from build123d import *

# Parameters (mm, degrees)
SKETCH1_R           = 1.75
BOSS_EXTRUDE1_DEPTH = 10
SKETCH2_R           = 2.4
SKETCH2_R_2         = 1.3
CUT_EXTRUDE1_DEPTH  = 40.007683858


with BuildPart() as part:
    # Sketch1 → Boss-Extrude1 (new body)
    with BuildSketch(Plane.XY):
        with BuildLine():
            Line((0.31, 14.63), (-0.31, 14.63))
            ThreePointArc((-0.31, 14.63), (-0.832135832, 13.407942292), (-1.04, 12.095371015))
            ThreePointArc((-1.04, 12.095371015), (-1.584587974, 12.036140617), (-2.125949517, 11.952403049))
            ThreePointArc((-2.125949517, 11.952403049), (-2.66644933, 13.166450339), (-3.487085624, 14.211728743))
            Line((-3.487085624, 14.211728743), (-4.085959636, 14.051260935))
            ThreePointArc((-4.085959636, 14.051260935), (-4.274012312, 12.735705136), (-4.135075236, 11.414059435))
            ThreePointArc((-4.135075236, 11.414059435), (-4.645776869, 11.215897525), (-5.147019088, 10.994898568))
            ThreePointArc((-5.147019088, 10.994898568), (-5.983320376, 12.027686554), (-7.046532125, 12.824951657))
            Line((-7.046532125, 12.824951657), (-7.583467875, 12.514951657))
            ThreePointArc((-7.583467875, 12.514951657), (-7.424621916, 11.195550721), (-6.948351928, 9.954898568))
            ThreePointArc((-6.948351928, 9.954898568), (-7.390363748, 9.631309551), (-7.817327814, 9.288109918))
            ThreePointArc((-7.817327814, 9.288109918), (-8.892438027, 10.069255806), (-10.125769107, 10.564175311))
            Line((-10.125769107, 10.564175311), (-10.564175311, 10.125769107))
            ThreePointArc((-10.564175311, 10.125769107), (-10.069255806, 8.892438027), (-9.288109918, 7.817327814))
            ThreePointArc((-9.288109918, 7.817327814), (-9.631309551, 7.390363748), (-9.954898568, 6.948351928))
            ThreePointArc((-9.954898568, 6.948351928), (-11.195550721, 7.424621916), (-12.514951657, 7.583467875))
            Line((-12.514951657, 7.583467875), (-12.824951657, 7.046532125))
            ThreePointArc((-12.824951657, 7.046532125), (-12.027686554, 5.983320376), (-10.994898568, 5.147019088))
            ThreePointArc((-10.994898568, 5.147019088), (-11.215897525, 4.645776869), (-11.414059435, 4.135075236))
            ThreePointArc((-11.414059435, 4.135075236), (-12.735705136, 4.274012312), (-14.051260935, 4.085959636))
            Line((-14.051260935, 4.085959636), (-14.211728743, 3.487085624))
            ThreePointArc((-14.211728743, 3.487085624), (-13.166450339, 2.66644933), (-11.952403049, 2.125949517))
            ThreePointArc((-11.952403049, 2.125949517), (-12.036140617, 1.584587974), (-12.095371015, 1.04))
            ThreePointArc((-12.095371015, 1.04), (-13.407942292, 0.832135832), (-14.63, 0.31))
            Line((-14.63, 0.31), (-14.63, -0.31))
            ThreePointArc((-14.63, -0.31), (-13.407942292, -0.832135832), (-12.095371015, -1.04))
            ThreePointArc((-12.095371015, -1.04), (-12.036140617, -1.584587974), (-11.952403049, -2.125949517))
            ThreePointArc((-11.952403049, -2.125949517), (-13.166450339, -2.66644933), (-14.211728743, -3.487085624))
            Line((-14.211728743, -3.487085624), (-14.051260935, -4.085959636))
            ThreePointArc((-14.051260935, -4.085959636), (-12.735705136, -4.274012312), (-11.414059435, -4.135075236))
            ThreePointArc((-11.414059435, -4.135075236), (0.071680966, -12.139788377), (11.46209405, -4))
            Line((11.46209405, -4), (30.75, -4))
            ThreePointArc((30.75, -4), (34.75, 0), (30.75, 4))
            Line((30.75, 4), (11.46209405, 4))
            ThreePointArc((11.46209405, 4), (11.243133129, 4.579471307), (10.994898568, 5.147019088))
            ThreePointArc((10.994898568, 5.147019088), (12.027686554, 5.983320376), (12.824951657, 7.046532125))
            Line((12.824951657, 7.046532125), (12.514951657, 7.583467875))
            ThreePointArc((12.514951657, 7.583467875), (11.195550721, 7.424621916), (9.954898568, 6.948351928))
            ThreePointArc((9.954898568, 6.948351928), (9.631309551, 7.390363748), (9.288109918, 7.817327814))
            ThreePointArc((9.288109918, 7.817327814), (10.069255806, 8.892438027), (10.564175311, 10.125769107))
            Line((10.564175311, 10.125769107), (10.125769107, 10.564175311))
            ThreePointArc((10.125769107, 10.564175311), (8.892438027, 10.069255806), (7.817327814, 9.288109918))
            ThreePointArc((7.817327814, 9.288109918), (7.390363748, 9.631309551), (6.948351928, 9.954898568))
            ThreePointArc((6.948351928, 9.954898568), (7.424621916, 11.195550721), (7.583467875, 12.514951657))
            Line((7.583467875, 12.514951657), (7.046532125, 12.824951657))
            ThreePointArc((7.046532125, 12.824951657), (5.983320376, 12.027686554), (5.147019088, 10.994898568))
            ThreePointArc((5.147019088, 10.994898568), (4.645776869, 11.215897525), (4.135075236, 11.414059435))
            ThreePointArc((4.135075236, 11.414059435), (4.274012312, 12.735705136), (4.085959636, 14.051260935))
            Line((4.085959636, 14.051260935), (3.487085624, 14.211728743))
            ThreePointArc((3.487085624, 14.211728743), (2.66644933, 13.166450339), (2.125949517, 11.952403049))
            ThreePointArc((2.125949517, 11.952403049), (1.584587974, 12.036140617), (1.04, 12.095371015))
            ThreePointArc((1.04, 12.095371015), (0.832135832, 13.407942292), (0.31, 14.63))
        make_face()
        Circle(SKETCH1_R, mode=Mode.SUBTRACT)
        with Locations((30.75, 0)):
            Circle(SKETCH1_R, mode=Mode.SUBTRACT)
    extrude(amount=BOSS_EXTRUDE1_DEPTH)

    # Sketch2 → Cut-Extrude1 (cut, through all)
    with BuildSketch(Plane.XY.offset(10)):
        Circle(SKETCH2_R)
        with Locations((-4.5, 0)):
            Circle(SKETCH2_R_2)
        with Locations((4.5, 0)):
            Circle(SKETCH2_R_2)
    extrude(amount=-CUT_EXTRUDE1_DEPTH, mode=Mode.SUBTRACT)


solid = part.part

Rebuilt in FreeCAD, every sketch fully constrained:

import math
import FreeCAD as App
import Part
import Sketcher
Q = App.Units.Quantity

doc = App.newDocument("Part")
body = doc.addObject("PartDesign::Body", "Body")

sketch1 = doc.addObject("Sketcher::SketchObject", "Sketch")
body.addObject(sketch1)
sketch1.AttachmentSupport = (doc.XY_Plane, [""])
sketch1.MapMode = "FlatFace"
sketch1.addGeometry([
    Part.LineSegment(App.Vector(0.31, 14.63, 0), App.Vector(-0.31, 14.63, 0)),
    Part.ArcOfCircle(Part.Circle(App.Vector(4.356934, 11.913435, 0), App.Vector(0, 0, 1), 5.4), math.radians(149.796843), math.radians(178.069235)),
    Part.ArcOfCircle(Part.Circle(App.Vector(0, 0, 0), App.Vector(0, 0, 1), 12.14), math.radians(94.914393), math.radians(100.085607)),
    Part.ArcOfCircle(Part.Circle(App.Vector(-7.291899, 10.379837, 0), App.Vector(0, 0, 1), 5.4), math.radians(16.930765), math.radians(45.203157)),
    Part.LineSegment(App.Vector(-3.487086, 14.211729, 0), App.Vector(-4.08596, 14.051261, 0)),
    Part.ArcOfCircle(Part.Circle(App.Vector(1.125051, 12.635152, 0), App.Vector(0, 0, 1), 5.4), math.radians(164.796843), math.radians(193.069235)),
    Part.ArcOfCircle(Part.Circle(App.Vector(0, 0, 0), App.Vector(0, 0, 1), 12.14), math.radians(109.914393), math.radians(115.085607)),
    Part.ArcOfCircle(Part.Circle(App.Vector(-9.729933, 8.13887, 0), App.Vector(0, 0, 1), 5.4), math.radians(31.930765), math.radians(60.203157)),
    Part.LineSegment(App.Vector(-7.046532, 12.824952, 0), App.Vector(-7.583468, 12.514952, 0)),
    Part.ArcOfCircle(Part.Circle(App.Vector(-2.183502, 12.495805, 0), App.Vector(0, 0, 1), 5.4), math.radians(179.796843), math.radians(208.069235)),
    Part.ArcOfCircle(Part.Circle(App.Vector(0, 0, 0), App.Vector(0, 0, 1), 12.140001), math.radians(124.914394), math.radians(130.085606)),
    Part.ArcOfCircle(Part.Circle(App.Vector(-11.504889, 5.343253, 0), App.Vector(0, 0, 1), 5.4), math.radians(46.930765), math.radians(75.203157)),
    Part.LineSegment(App.Vector(-10.125769, 10.564175, 0), App.Vector(-10.564175, 10.125769, 0)),
    Part.ArcOfCircle(Part.Circle(App.Vector(-5.343253, 11.504889, 0), App.Vector(0, 0, 1), 5.4), math.radians(-165.203157), math.radians(-136.930765)),
    Part.ArcOfCircle(Part.Circle(App.Vector(0, 0, 0), App.Vector(0, 0, 1), 12.140001), math.radians(139.914394), math.radians(145.085606)),
    Part.ArcOfCircle(Part.Circle(App.Vector(-12.495805, 2.183502, 0), App.Vector(0, 0, 1), 5.4), math.radians(61.930765), math.radians(90.203157)),
    Part.LineSegment(App.Vector(-12.514952, 7.583468, 0), App.Vector(-12.824952, 7.046532, 0)),
    Part.ArcOfCircle(Part.Circle(App.Vector(-8.13887, 9.729933, 0), App.Vector(0, 0, 1), 5.4), math.radians(-150.203157), math.radians(-121.930765)),
    Part.ArcOfCircle(Part.Circle(App.Vector(0, 0, 0), App.Vector(0, 0, 1), 12.14), math.radians(154.914393), math.radians(160.085607)),
    Part.ArcOfCircle(Part.Circle(App.Vector(-12.635152, -1.125051, 0), App.Vector(0, 0, 1), 5.4), math.radians(76.930765), math.radians(105.203157)),
    Part.LineSegment(App.Vector(-14.051261, 4.08596, 0), App.Vector(-14.211729, 3.487086, 0)),
    Part.ArcOfCircle(Part.Circle(App.Vector(-10.379837, 7.291899, 0), App.Vector(0, 0, 1), 5.4), math.radians(-135.203157), math.radians(-106.930765)),
    Part.ArcOfCircle(Part.Circle(App.Vector(0, 0, 0), App.Vector(0, 0, 1), 12.14), math.radians(169.914393), math.radians(175.085607)),
    Part.ArcOfCircle(Part.Circle(App.Vector(-11.913435, -4.356934, 0), App.Vector(0, 0, 1), 5.4), math.radians(91.930765), math.radians(120.203157)),
    Part.LineSegment(App.Vector(-14.63, 0.31, 0), App.Vector(-14.63, -0.31, 0)),
    Part.ArcOfCircle(Part.Circle(App.Vector(-11.913435, 4.356934, 0), App.Vector(0, 0, 1), 5.4), math.radians(-120.203157), math.radians(-91.930765)),
    Part.ArcOfCircle(Part.Circle(App.Vector(0, 0, 0), App.Vector(0, 0, 1), 12.14), math.radians(-175.085607), math.radians(-169.914393)),
    Part.ArcOfCircle(Part.Circle(App.Vector(-10.379837, -7.291899, 0), App.Vector(0, 0, 1), 5.4), math.radians(106.930765), math.radians(135.203157)),
    Part.LineSegment(App.Vector(-14.211729, -3.487086, 0), App.Vector(-14.051261, -4.08596, 0)),
    Part.ArcOfCircle(Part.Circle(App.Vector(-12.635152, 1.125051, 0), App.Vector(0, 0, 1), 5.4), math.radians(-105.203157), math.radians(-76.930765)),
    Part.ArcOfCircle(Part.Circle(App.Vector(0, 0, 0), App.Vector(0, 0, 1), 12.14), math.radians(-160.085607), math.radians(-19.237781)),
    Part.LineSegment(App.Vector(11.462094, -4, 0), App.Vector(30.75, -4, 0)),
    Part.ArcOfCircle(Part.Circle(App.Vector(30.75, 0, 0), App.Vector(0, 0, 1), 4), math.radians(-90), math.radians(90)),
    Part.LineSegment(App.Vector(30.75, 4, 0), App.Vector(11.462094, 4, 0)),
    Part.ArcOfCircle(Part.Circle(App.Vector(0, 0, 0), App.Vector(0, 0, 1), 12.14), math.radians(19.237781), math.radians(25.085606)),
    Part.ArcOfCircle(Part.Circle(App.Vector(8.13887, 9.729933, 0), App.Vector(0, 0, 1), 5.4), math.radians(-58.069235), math.radians(-29.796843)),
    Part.LineSegment(App.Vector(12.824952, 7.046532, 0), App.Vector(12.514952, 7.583468, 0)),
    Part.ArcOfCircle(Part.Circle(App.Vector(12.495805, 2.183502, 0), App.Vector(0, 0, 1), 5.4), math.radians(89.796843), math.radians(118.069235)),
    Part.ArcOfCircle(Part.Circle(App.Vector(0, 0, 0), App.Vector(0, 0, 1), 12.140001), math.radians(34.914394), math.radians(40.085606)),
    Part.ArcOfCircle(Part.Circle(App.Vector(5.343253, 11.504889, 0), App.Vector(0, 0, 1), 5.4), math.radians(-43.069235), math.radians(-14.796843)),
    Part.LineSegment(App.Vector(10.564175, 10.125769, 0), App.Vector(10.125769, 10.564175, 0)),
    Part.ArcOfCircle(Part.Circle(App.Vector(11.504889, 5.343253, 0), App.Vector(0, 0, 1), 5.4), math.radians(104.796843), math.radians(133.069235)),
    Part.ArcOfCircle(Part.Circle(App.Vector(0, 0, 0), App.Vector(0, 0, 1), 12.140001), math.radians(49.914394), math.radians(55.085606)),
    Part.ArcOfCircle(Part.Circle(App.Vector(2.183502, 12.495805, 0), App.Vector(0, 0, 1), 5.4), math.radians(-28.069235), math.radians(0.203157)),
    Part.LineSegment(App.Vector(7.583468, 12.514952, 0), App.Vector(7.046532, 12.824952, 0)),
    Part.ArcOfCircle(Part.Circle(App.Vector(9.729933, 8.13887, 0), App.Vector(0, 0, 1), 5.4), math.radians(119.796843), math.radians(148.069235)),
    Part.ArcOfCircle(Part.Circle(App.Vector(0, 0, 0), App.Vector(0, 0, 1), 12.14), math.radians(64.914393), math.radians(70.085607)),
    Part.ArcOfCircle(Part.Circle(App.Vector(-1.125051, 12.635152, 0), App.Vector(0, 0, 1), 5.4), math.radians(-13.069235), math.radians(15.203157)),
    Part.LineSegment(App.Vector(4.08596, 14.051261, 0), App.Vector(3.487086, 14.211729, 0)),
    Part.ArcOfCircle(Part.Circle(App.Vector(7.291899, 10.379837, 0), App.Vector(0, 0, 1), 5.4), math.radians(134.796843), math.radians(163.069235)),
    Part.ArcOfCircle(Part.Circle(App.Vector(0, 0, 0), App.Vector(0, 0, 1), 12.14), math.radians(79.914393), math.radians(85.085607)),
    Part.ArcOfCircle(Part.Circle(App.Vector(-4.356934, 11.913435, 0), App.Vector(0, 0, 1), 5.4), math.radians(1.930765), math.radians(30.203157)),
    Part.Circle(App.Vector(0, 0, 0), App.Vector(0, 0, 1), 1.75),
    Part.Circle(App.Vector(30.75, 0, 0), App.Vector(0, 0, 1), 1.75),
], False)
sketch1.addConstraint([
    Sketcher.Constraint("Coincident", 0, 2, 1, 1),
    Sketcher.Constraint("Coincident", 1, 2, 2, 1),
    Sketcher.Constraint("Coincident", 2, 2, 3, 1),
    Sketcher.Constraint("Coincident", 3, 2, 4, 1),
    Sketcher.Constraint("Coincident", 4, 2, 5, 1),
    Sketcher.Constraint("Coincident", 5, 2, 6, 1),
    Sketcher.Constraint("Coincident", 6, 2, 7, 1),
    Sketcher.Constraint("Coincident", 7, 2, 8, 1),
    Sketcher.Constraint("Coincident", 8, 2, 9, 1),
    Sketcher.Constraint("Coincident", 9, 2, 10, 1),
    Sketcher.Constraint("Coincident", 10, 2, 11, 1),
    Sketcher.Constraint("Coincident", 11, 2, 12, 1),
    Sketcher.Constraint("Coincident", 12, 2, 13, 1),
    Sketcher.Constraint("Coincident", 13, 2, 14, 1),
    Sketcher.Constraint("Coincident", 14, 2, 15, 1),
    Sketcher.Constraint("Coincident", 15, 2, 16, 1),
    Sketcher.Constraint("Coincident", 16, 2, 17, 1),
    Sketcher.Constraint("Coincident", 17, 2, 18, 1),
    Sketcher.Constraint("Coincident", 18, 2, 19, 1),
    Sketcher.Constraint("Coincident", 19, 2, 20, 1),
    Sketcher.Constraint("Coincident", 20, 2, 21, 1),
    Sketcher.Constraint("Coincident", 21, 2, 22, 1),
    Sketcher.Constraint("Coincident", 22, 2, 23, 1),
    Sketcher.Constraint("Coincident", 23, 2, 24, 1),
    Sketcher.Constraint("Coincident", 24, 2, 25, 1),
    Sketcher.Constraint("Coincident", 25, 2, 26, 1),
    Sketcher.Constraint("Coincident", 26, 2, 27, 1),
    Sketcher.Constraint("Coincident", 27, 2, 28, 1),
    Sketcher.Constraint("Coincident", 28, 2, 29, 1),
    Sketcher.Constraint("Coincident", 29, 2, 30, 1),
    Sketcher.Constraint("Coincident", 30, 2, 31, 1),
    Sketcher.Constraint("Tangent", 31, 2, 32, 1),
    Sketcher.Constraint("Tangent", 32, 2, 33, 1),
    Sketcher.Constraint("Coincident", 33, 2, 34, 1),
    Sketcher.Constraint("Coincident", 34, 2, 35, 1),
    Sketcher.Constraint("Coincident", 35, 2, 36, 1),
    Sketcher.Constraint("Coincident", 36, 2, 37, 1),
    Sketcher.Constraint("Coincident", 37, 2, 38, 1),
    Sketcher.Constraint("Coincident", 38, 2, 39, 1),
    Sketcher.Constraint("Coincident", 39, 2, 40, 1),
    Sketcher.Constraint("Coincident", 40, 2, 41, 1),
    Sketcher.Constraint("Coincident", 41, 2, 42, 1),
    Sketcher.Constraint("Coincident", 42, 2, 43, 1),
    Sketcher.Constraint("Coincident", 43, 2, 44, 1),
    Sketcher.Constraint("Coincident", 44, 2, 45, 1),
    Sketcher.Constraint("Coincident", 45, 2, 46, 1),
    Sketcher.Constraint("Coincident", 46, 2, 47, 1),
    Sketcher.Constraint("Coincident", 47, 2, 48, 1),
    Sketcher.Constraint("Coincident", 48, 2, 49, 1),
    Sketcher.Constraint("Coincident", 49, 2, 50, 1),
    Sketcher.Constraint("Coincident", 50, 2, 51, 1),
    Sketcher.Constraint("Coincident", 51, 2, 0, 1),
    Sketcher.Constraint("Horizontal", 0),
    Sketcher.Constraint("Vertical", 24),
    Sketcher.Constraint("Horizontal", 31),
    Sketcher.Constraint("Horizontal", 33),
    Sketcher.Constraint("Coincident", 2, 3, -1, 1),
    Sketcher.Constraint("Coincident", 6, 3, -1, 1),
    Sketcher.Constraint("Coincident", 10, 3, -1, 1),
    Sketcher.Constraint("Coincident", 14, 3, -1, 1),
    Sketcher.Constraint("Coincident", 18, 3, -1, 1),
    Sketcher.Constraint("Coincident", 22, 3, -1, 1),
    Sketcher.Constraint("Coincident", 26, 3, -1, 1),
    Sketcher.Constraint("Coincident", 30, 3, -1, 1),
    Sketcher.Constraint("Coincident", 34, 3, -1, 1),
    Sketcher.Constraint("Coincident", 38, 3, -1, 1),
    Sketcher.Constraint("Coincident", 42, 3, -1, 1),
    Sketcher.Constraint("Coincident", 46, 3, -1, 1),
    Sketcher.Constraint("Coincident", 50, 3, -1, 1),
    Sketcher.Constraint("Coincident", 52, 3, -1, 1),
    Sketcher.Constraint("Coincident", 53, 3, 32, 3),
    Sketcher.Constraint("Equal", 1, 3),
    Sketcher.Constraint("Equal", 3, 5),
    Sketcher.Constraint("Equal", 2, 6),
    Sketcher.Constraint("Equal", 5, 7),
    Sketcher.Constraint("Equal", 7, 9),
    Sketcher.Constraint("Equal", 6, 10),
    Sketcher.Constraint("Equal", 9, 11),
    Sketcher.Constraint("Equal", 11, 13),
    Sketcher.Constraint("Equal", 10, 14),
    Sketcher.Constraint("Equal", 13, 15),
    Sketcher.Constraint("Equal", 15, 17),
    Sketcher.Constraint("Equal", 14, 18),
    Sketcher.Constraint("Equal", 17, 19),
    Sketcher.Constraint("Equal", 19, 21),
    Sketcher.Constraint("Equal", 18, 22),
    Sketcher.Constraint("Equal", 21, 23),
    Sketcher.Constraint("Equal", 23, 25),
    Sketcher.Constraint("Equal", 22, 26),
    Sketcher.Constraint("Equal", 25, 27),
    Sketcher.Constraint("Equal", 27, 29),
    Sketcher.Constraint("Equal", 26, 30),
    Sketcher.Constraint("Equal", 30, 34),
    Sketcher.Constraint("Equal", 29, 35),
    Sketcher.Constraint("Equal", 35, 37),
    Sketcher.Constraint("Equal", 34, 38),
    Sketcher.Constraint("Equal", 37, 39),
    Sketcher.Constraint("Equal", 39, 41),
    Sketcher.Constraint("Equal", 38, 42),
    Sketcher.Constraint("Equal", 41, 43),
    Sketcher.Constraint("Equal", 43, 45),
    Sketcher.Constraint("Equal", 42, 46),
    Sketcher.Constraint("Equal", 45, 47),
    Sketcher.Constraint("Equal", 47, 49),
    Sketcher.Constraint("Equal", 46, 50),
    Sketcher.Constraint("Equal", 49, 51),
    Sketcher.Constraint("Equal", 52, 53),
    Sketcher.Constraint("Symmetric", 17, 3, 35, 3, -2),
    Sketcher.Constraint("Symmetric", 15, 3, 37, 3, -2),
    Sketcher.Constraint("Symmetric", 13, 3, 39, 3, -2),
    Sketcher.Constraint("Symmetric", 11, 3, 41, 3, -2),
    Sketcher.Constraint("Symmetric", 9, 3, 43, 3, -2),
    Sketcher.Constraint("Symmetric", 7, 3, 45, 3, -2),
    Sketcher.Constraint("Symmetric", 5, 3, 47, 3, -2),
    Sketcher.Constraint("Symmetric", 3, 3, 49, 3, -2),
    Sketcher.Constraint("Symmetric", 1, 3, 51, 3, -2),
    Sketcher.Constraint("Symmetric", 23, 3, 25, 3, -1),
    Sketcher.Constraint("Symmetric", 21, 3, 27, 3, -1),
    Sketcher.Constraint("Symmetric", 19, 3, 29, 3, -1),
    Sketcher.Constraint("PointOnObject", 32, 3, -1),
    Sketcher.Constraint("Perpendicular", 4, 28),
    Sketcher.Constraint("Perpendicular", 8, 36),
    Sketcher.Constraint("Perpendicular", 12, 40),
    Sketcher.Constraint("Perpendicular", 16, 44),
    Sketcher.Constraint("Perpendicular", 20, 48),
    Sketcher.Constraint("Horizontal", 16, 2, 35, 2),
    Sketcher.Constraint("Horizontal", 15, 2, 36, 2),
    Sketcher.Constraint("Horizontal", 12, 2, 39, 2),
    Sketcher.Constraint("Horizontal", 11, 2, 40, 2),
    Sketcher.Constraint("Horizontal", 8, 2, 43, 2),
    Sketcher.Constraint("Horizontal", 4, 2, 47, 2),
    Sketcher.Constraint("Horizontal", 3, 2, 48, 2),
    Sketcher.Constraint("Vertical", 20, 2, 27, 2),
    Sketcher.Constraint("Equal", 0, 24),
    Sketcher.Constraint("Equal", 4, 8),
    Sketcher.Constraint("Equal", 8, 12),
    Sketcher.Constraint("Equal", 12, 16),
    Sketcher.Constraint("Equal", 16, 20),
    Sketcher.Constraint("Radius", 32, Q("4 mm")),
    Sketcher.Constraint("Diameter", 52, Q("3.5 mm")),
    Sketcher.Constraint("Radius", 1, Q("5.4 mm")),
    Sketcher.Constraint("Angle", 4, Q("-165 deg")),
    Sketcher.Constraint("Angle", 8, Q("-150 deg")),
    Sketcher.Constraint("Radius", 2, Q("12.14 mm")),
    Sketcher.Constraint("DistanceX", 0, 2, 0, 1, Q("0.62 mm")),
    Sketcher.Constraint("Distance", 4, Q("0.62 mm")),
    Sketcher.Constraint("DistanceX", -1, 1, 32, 3, Q("30.75 mm")),
    Sketcher.Constraint("DistanceY", -1, 1, 0, 2, Q("14.63 mm")),
    Sketcher.Constraint("DistanceX", 1, 2, -1, 1, Q("1.04 mm")),
    Sketcher.Constraint("DistanceY", -1, 1, 22, 2, Q("1.04 mm")),
    Sketcher.Constraint("DistanceX", 23, 2, -1, 1, Q("14.63 mm")),
    Sketcher.Constraint("DistanceX", 3, 3, -1, 1, Q("7.291899 mm")),
    Sketcher.Constraint("DistanceX", 9, 3, -1, 1, Q("2.183502 mm")),
    Sketcher.Constraint("DistanceY", -1, 1, 15, 3, Q("2.183502 mm")),
    Sketcher.Constraint("DistanceY", -1, 1, 21, 3, Q("7.291899 mm")),
    Sketcher.Constraint("DistanceY", -1, 1, 6, 2, Q("10.994899 mm")),
    Sketcher.Constraint("DistanceY", -1, 1, 9, 2, Q("9.954899 mm")),
    Sketcher.Constraint("DistanceX", 14, 2, -1, 1, Q("9.954899 mm")),
    Sketcher.Constraint("DistanceX", 17, 2, -1, 1, Q("10.994899 mm")),
    Sketcher.Constraint("DistanceX", -1, 1, 5, 3, Q("1.125051 mm")),
    Sketcher.Constraint("DistanceY", -1, 1, 7, 3, Q("8.13887 mm")),
    Sketcher.Constraint("DistanceX", 11, 3, -1, 1, Q("11.504889 mm")),
    Sketcher.Constraint("DistanceY", -1, 1, 13, 3, Q("11.504889 mm")),
    Sketcher.Constraint("DistanceX", 17, 3, -1, 1, Q("8.13887 mm")),
    Sketcher.Constraint("DistanceY", 19, 3, -1, 1, Q("1.125051 mm")),
    Sketcher.Constraint("DistanceX", 2, 2, -1, 1, Q("2.12595 mm")),
    Sketcher.Constraint("DistanceY", -1, 1, 3, 2, Q("14.211729 mm")),
    Sketcher.Constraint("DistanceY", -1, 1, 10, 2, Q("9.28811 mm")),
    Sketcher.Constraint("DistanceX", 11, 2, -1, 1, Q("10.125769 mm")),
    Sketcher.Constraint("DistanceX", 18, 2, -1, 1, Q("11.414059 mm")),
    Sketcher.Constraint("DistanceX", 19, 2, -1, 1, Q("14.051261 mm")),
])
pad1 = doc.addObject("PartDesign::Pad", "Pad")
body.addObject(pad1)
pad1.Profile = sketch1
pad1.Length = 10

sketch2 = doc.addObject("Sketcher::SketchObject", "Sketch001")
body.addObject(sketch2)
sketch2.AttachmentSupport = (doc.XY_Plane, [""])
sketch2.MapMode = "FlatFace"
sketch2.AttachmentOffset = App.Placement(App.Vector(0, 0, 10), App.Rotation())
sketch2.addGeometry([
    Part.Circle(App.Vector(0, 0, 0), App.Vector(0, 0, 1), 2.4),
    Part.Circle(App.Vector(-4.5, 0, 0), App.Vector(0, 0, 1), 1.3),
    Part.Circle(App.Vector(4.5, 0, 0), App.Vector(0, 0, 1), 1.3),
], False)
sketch2.addConstraint([
    Sketcher.Constraint("Coincident", 0, 3, -1, 1),
    Sketcher.Constraint("Equal", 1, 2),
    Sketcher.Constraint("Symmetric", 1, 3, 2, 3, -1, 1),
    Sketcher.Constraint("PointOnObject", 1, 3, -1),
    Sketcher.Constraint("Diameter", 0, Q("4.8 mm")),
    Sketcher.Constraint("Diameter", 1, Q("2.6 mm")),
    Sketcher.Constraint("DistanceX", 1, 3, 2, 3, Q("9 mm")),
])
pocket1 = doc.addObject("PartDesign::Pocket", "Pocket")
body.addObject(pocket1)
pocket1.Profile = sketch2
pocket1.Type = "ThroughAll"

doc.recompute()
